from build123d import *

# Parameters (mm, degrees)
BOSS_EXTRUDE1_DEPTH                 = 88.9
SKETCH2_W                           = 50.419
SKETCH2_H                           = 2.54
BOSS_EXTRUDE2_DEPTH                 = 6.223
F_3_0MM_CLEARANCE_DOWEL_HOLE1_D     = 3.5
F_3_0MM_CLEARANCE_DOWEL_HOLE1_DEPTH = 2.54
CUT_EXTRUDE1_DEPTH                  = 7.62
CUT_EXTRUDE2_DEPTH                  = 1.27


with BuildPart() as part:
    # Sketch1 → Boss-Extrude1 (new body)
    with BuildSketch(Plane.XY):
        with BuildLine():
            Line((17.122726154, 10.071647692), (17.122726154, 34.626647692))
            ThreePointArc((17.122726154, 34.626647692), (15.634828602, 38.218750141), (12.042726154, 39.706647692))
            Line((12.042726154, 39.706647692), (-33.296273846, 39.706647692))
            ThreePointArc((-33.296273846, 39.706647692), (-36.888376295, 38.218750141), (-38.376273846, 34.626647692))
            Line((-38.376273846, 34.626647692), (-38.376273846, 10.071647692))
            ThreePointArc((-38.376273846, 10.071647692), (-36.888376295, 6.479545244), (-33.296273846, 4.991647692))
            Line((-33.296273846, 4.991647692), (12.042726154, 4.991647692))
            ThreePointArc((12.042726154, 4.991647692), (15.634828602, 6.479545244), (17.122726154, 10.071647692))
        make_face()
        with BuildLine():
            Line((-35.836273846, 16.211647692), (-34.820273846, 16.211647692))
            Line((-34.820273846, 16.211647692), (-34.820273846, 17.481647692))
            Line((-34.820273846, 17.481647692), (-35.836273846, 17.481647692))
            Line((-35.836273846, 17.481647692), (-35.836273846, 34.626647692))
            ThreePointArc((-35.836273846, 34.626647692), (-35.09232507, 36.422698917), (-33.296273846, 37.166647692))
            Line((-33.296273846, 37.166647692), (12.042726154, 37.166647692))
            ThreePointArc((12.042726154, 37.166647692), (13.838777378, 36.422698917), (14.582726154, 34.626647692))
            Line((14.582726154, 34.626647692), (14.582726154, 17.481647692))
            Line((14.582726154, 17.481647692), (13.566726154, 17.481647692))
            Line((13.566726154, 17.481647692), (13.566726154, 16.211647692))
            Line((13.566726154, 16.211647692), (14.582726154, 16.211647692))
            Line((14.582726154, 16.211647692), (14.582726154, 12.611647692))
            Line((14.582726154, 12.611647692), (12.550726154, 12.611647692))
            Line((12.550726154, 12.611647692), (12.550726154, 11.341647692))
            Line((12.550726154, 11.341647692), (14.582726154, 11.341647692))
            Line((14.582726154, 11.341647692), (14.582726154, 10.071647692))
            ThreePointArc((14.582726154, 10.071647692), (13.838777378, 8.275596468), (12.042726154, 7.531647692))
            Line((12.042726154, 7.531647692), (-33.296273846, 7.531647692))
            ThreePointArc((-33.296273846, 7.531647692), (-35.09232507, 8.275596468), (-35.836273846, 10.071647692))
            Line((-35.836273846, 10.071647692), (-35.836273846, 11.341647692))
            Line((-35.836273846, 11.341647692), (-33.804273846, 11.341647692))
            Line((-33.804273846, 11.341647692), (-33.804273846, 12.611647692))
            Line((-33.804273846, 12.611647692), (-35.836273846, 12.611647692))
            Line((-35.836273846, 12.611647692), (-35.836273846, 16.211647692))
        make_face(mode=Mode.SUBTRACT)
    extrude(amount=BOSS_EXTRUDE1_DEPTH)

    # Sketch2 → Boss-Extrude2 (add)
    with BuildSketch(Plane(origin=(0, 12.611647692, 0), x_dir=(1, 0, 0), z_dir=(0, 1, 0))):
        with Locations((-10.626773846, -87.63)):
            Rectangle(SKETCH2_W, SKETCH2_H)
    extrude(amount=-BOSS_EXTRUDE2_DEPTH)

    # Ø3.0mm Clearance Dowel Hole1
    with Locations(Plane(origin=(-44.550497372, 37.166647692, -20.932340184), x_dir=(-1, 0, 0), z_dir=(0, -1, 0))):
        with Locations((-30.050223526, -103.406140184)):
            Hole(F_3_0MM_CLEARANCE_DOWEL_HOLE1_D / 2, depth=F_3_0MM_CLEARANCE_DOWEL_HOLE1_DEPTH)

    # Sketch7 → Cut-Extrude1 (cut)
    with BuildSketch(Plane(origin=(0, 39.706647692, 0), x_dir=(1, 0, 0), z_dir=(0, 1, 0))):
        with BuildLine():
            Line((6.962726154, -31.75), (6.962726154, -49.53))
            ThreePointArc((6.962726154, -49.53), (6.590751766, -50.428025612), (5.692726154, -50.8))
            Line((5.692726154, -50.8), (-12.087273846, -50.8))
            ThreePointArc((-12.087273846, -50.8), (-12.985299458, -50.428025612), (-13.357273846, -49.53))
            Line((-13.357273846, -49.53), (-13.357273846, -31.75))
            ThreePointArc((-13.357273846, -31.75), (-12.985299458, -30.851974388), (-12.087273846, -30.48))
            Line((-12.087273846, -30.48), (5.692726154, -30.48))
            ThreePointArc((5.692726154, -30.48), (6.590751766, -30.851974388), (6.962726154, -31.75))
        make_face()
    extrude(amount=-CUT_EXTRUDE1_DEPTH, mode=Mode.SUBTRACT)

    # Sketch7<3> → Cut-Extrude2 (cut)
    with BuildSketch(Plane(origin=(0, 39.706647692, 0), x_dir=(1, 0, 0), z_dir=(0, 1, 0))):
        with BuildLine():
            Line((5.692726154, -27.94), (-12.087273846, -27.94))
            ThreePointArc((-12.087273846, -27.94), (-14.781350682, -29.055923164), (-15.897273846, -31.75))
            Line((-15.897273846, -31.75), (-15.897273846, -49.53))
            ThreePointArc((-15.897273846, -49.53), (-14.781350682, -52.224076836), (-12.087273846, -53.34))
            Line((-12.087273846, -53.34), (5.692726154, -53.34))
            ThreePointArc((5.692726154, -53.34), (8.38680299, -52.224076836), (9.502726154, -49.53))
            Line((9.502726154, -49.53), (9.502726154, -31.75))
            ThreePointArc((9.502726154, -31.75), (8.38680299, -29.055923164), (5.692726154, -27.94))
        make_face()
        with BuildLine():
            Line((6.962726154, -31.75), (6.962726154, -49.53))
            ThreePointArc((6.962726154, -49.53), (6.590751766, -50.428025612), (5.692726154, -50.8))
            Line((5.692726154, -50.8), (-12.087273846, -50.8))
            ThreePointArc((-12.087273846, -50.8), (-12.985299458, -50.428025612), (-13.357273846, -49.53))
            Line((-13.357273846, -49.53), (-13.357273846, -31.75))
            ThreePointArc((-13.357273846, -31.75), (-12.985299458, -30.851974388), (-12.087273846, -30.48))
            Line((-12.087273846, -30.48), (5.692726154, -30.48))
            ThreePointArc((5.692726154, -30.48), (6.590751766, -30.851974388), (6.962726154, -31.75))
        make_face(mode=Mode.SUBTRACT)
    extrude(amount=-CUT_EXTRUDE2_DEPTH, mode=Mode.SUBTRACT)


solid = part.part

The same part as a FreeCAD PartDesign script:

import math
import FreeCAD as App
import Part
import Sketcher

V = App.Vector
Q = App.Units.Quantity


def add_polygon(sketch, points):
    """Adds a closed chain of lines whose ends are joined by coincident constraints."""
    first, n = sketch.GeometryCount, len(points)
    for a, b in zip(points, points[1:] + points[:1]):
        sketch.addGeometry(Part.LineSegment(App.Vector(*a, 0), App.Vector(*b, 0)), False)
    for i in range(n):
        sketch.addConstraint(Sketcher.Constraint("Coincident", first + i, 2, first + (i + 1) % n, 1))

doc = App.newDocument("Part")
body = doc.addObject("PartDesign::Body", "Body")

# Sketch on XY plane
sketch1 = doc.addObject("Sketcher::SketchObject", "Sketch")
body.addObject(sketch1)
sketch1.AttachmentSupport = (doc.XY_Plane, [""])
sketch1.MapMode = "FlatFace"
sketch1.addGeometry([
    Part.LineSegment(V(17.1, 10.1, 0), V(17.1, 34.6, 0)),  # 0
    Part.ArcOfCircle(Part.Circle(V(12, 34.6, 0), V(0, 0, 1), 5.1), math.radians(0), math.radians(90)),  # 1
    Part.LineSegment(V(12, 39.7, 0), V(-33.3, 39.7, 0)),  # 2
    Part.ArcOfCircle(Part.Circle(V(-33.3, 34.6, 0), V(0, 0, 1), 5.1), math.radians(90), math.radians(180)),  # 3
    Part.LineSegment(V(-38.4, 34.6, 0), V(-38.4, 10.1, 0)),  # 4
    Part.ArcOfCircle(Part.Circle(V(-33.3, 10.1, 0), V(0, 0, 1), 5.1), math.radians(180), math.radians(270)),  # 5
    Part.LineSegment(V(-33.3, 5, 0), V(12, 5, 0)),  # 6
    Part.ArcOfCircle(Part.Circle(V(12, 10.1, 0), V(0, 0, 1), 5.1), math.radians(-90), math.radians(0)),  # 7
    Part.LineSegment(V(-35.8, 12.6, 0), V(-35.8, 16.2, 0)),  # 8
    Part.LineSegment(V(-35.8, 16.2, 0), V(-34.8, 16.2, 0)),  # 9
    Part.LineSegment(V(-34.8, 16.2, 0), V(-34.8, 17.5, 0)),  # 10
    Part.LineSegment(V(-34.8, 17.5, 0), V(-35.8, 17.5, 0)),  # 11
    Part.LineSegment(V(-35.8, 17.5, 0), V(-35.8, 34.6, 0)),  # 12
    Part.ArcOfCircle(Part.Circle(V(-33.3, 34.6, 0), V(0, 0, 1), 2.5), math.radians(90), math.radians(180)),  # 13
    Part.LineSegment(V(-33.3, 37.2, 0), V(12, 37.2, 0)),  # 14
    Part.ArcOfCircle(Part.Circle(V(12, 34.6, 0), V(0, 0, 1), 2.5), math.radians(0), math.radians(90)),  # 15
    Part.LineSegment(V(14.6, 34.6, 0), V(14.6, 17.5, 0)),  # 16
    Part.LineSegment(V(14.6, 17.5, 0), V(13.6, 17.5, 0)),  # 17
    Part.LineSegment(V(13.6, 17.5, 0), V(13.6, 16.2, 0)),  # 18
    Part.LineSegment(V(13.6, 16.2, 0), V(14.6, 16.2, 0)),  # 19
    Part.LineSegment(V(14.6, 16.2, 0), V(14.6, 12.6, 0)),  # 20
    Part.LineSegment(V(14.6, 12.6, 0), V(12.6, 12.6, 0)),  # 21
    Part.LineSegment(V(12.6, 12.6, 0), V(12.6, 11.3, 0)),  # 22
    Part.LineSegment(V(12.6, 11.3, 0), V(14.6, 11.3, 0)),  # 23
    Part.LineSegment(V(14.6, 11.3, 0), V(14.6, 10.1, 0)),  # 24
    Part.ArcOfCircle(Part.Circle(V(12, 10.1, 0), V(0, 0, 1), 2.5), math.radians(-90), math.radians(0)),  # 25
    Part.LineSegment(V(12, 7.5, 0), V(-33.3, 7.5, 0)),  # 26
    Part.ArcOfCircle(Part.Circle(V(-33.3, 10.1, 0), V(0, 0, 1), 2.5), math.radians(-180), math.radians(-90)),  # 27
    Part.LineSegment(V(-35.8, 10.1, 0), V(-35.8, 11.3, 0)),  # 28
    Part.LineSegment(V(-35.8, 11.3, 0), V(-33.8, 11.3, 0)),  # 29
    Part.LineSegment(V(-33.8, 11.3, 0), V(-33.8, 12.6, 0)),  # 30
    Part.LineSegment(V(-33.8, 12.6, 0), V(-35.8, 12.6, 0)),  # 31
], False)
sketch1.addConstraint([
    Sketcher.Constraint("Tangent", 0, 2, 1, 1),
    Sketcher.Constraint("Tangent", 1, 2, 2, 1),
    Sketcher.Constraint("Tangent", 2, 2, 3, 1),
    Sketcher.Constraint("Tangent", 3, 2, 4, 1),
    Sketcher.Constraint("Tangent", 4, 2, 5, 1),
    Sketcher.Constraint("Tangent", 5, 2, 6, 1),
    Sketcher.Constraint("Tangent", 6, 2, 7, 1),
    Sketcher.Constraint("Tangent", 7, 2, 0, 1),
    Sketcher.Constraint("Coincident", 8, 2, 9, 1),
    Sketcher.Constraint("Coincident", 9, 2, 10, 1),
    Sketcher.Constraint("Coincident", 10, 2, 11, 1),
    Sketcher.Constraint("Coincident", 11, 2, 12, 1),
    Sketcher.Constraint("Tangent", 12, 2, 13, 2),
    Sketcher.Constraint("Tangent", 13, 1, 14, 1),
    Sketcher.Constraint("Tangent", 14, 2, 15, 2),
    Sketcher.Constraint("Tangent", 15, 1, 16, 1),
    Sketcher.Constraint("Coincident", 16, 2, 17, 1),
    Sketcher.Constraint("Coincident", 17, 2, 18, 1),
    Sketcher.Constraint("Coincident", 18, 2, 19, 1),
    Sketcher.Constraint("Coincident", 19, 2, 20, 1),
    Sketcher.Constraint("Coincident", 20, 2, 21, 1),
    Sketcher.Constraint("Coincident", 21, 2, 22, 1),
    Sketcher.Constraint("Coincident", 22, 2, 23, 1),
    Sketcher.Constraint("Coincident", 23, 2, 24, 1),
    Sketcher.Constraint("Tangent", 24, 2, 25, 2),
    Sketcher.Constraint("Tangent", 25, 1, 26, 1),
    Sketcher.Constraint("Tangent", 26, 2, 27, 2),
    Sketcher.Constraint("Tangent", 27, 1, 28, 1),
    Sketcher.Constraint("Coincident", 28, 2, 29, 1),
    Sketcher.Constraint("Coincident", 29, 2, 30, 1),
    Sketcher.Constraint("Coincident", 30, 2, 31, 1),
    Sketcher.Constraint("Coincident", 31, 2, 8, 1),
    Sketcher.Constraint("Vertical", 0),
    Sketcher.Constraint("Horizontal", 2),
    Sketcher.Constraint("Vertical", 4),
    Sketcher.Constraint("Horizontal", 6),
    Sketcher.Constraint("Vertical", 8),
    Sketcher.Constraint("Horizontal", 9),
    Sketcher.Constraint("Vertical", 10),
    Sketcher.Constraint("Horizontal", 11),
    Sketcher.Constraint("Vertical", 12),
    Sketcher.Constraint("Horizontal", 14),
    Sketcher.Constraint("Vertical", 16),
    Sketcher.Constraint("Horizontal", 17),
    Sketcher.Constraint("Vertical", 18),
    Sketcher.Constraint("Horizontal", 19),
    Sketcher.Constraint("Vertical", 20),
    Sketcher.Constraint("Horizontal", 21),
    Sketcher.Constraint("Vertical", 22),
    Sketcher.Constraint("Horizontal", 23),
    Sketcher.Constraint("Vertical", 24),
    Sketcher.Constraint("Horizontal", 26),
    Sketcher.Constraint("Vertical", 28),
    Sketcher.Constraint("Horizontal", 29),
    Sketcher.Constraint("Vertical", 30),
    Sketcher.Constraint("Horizontal", 31),
    Sketcher.Constraint("Coincident", 13, 3, 3, 3),
    Sketcher.Constraint("Coincident", 15, 3, 1, 3),
    Sketcher.Constraint("Coincident", 25, 3, 7, 3),
    Sketcher.Constraint("Coincident", 27, 3, 5, 3),
    Sketcher.Constraint("Equal", 1, 3),
    Sketcher.Constraint("Equal", 3, 5),
    Sketcher.Constraint("Equal", 5, 7),
    Sketcher.Constraint("Equal", 15, 25),
    Sketcher.Constraint("Horizontal", 11, 2, 16, 2),
    Sketcher.Constraint("Horizontal", 9, 2, 18, 2),
    Sketcher.Constraint("Horizontal", 23, 2, 28, 2),
    Sketcher.Constraint("Horizontal", 21, 2, 30, 2),
    Sketcher.Constraint("Vertical", 8, 2, 11, 2),
    Sketcher.Constraint("Vertical", 16, 2, 19, 2),
    Sketcher.Constraint("Equal", 11, 17),
    Sketcher.Constraint("Equal", 23, 29),
    Sketcher.Constraint("Equal", 18, 22),
    Sketcher.Constraint("Equal", 22, 24),
    Sketcher.Constraint("Radius", 1, Q("0.2 in")),
    Sketcher.Constraint("Radius", 13, Q("0.1 in")),
    Sketcher.Constraint("DistanceX", 9, 1, 9, 2, Q("0.04 in")),
    Sketcher.Constraint("DistanceX", 21, 2, 21, 1, Q("0.08 in")),
    Sketcher.Constraint("DistanceY", 10, 1, 10, 2, Q("0.05 in")),
    Sketcher.Constraint("DistanceX", 2, 2, 2, 1, Q("1.785 in")),
    Sketcher.Constraint("DistanceY", 12, 1, 12, 2, Q("0.675 in")),
    Sketcher.Constraint("DistanceY", 0, 1, 0, 2, 24.555),
    Sketcher.Constraint("DistanceX", -1, 1, 1, 3, 12.042726),
    Sketcher.Constraint("DistanceY", -1, 1, 1, 3, 34.626648),
])
pad1 = doc.addObject("PartDesign::Pad", "Pad")
body.addObject(pad1)
pad1.Profile = sketch1
pad1.Length = Q("3.5 in")

# Sketch on XZ plane
sketch2 = doc.addObject("Sketcher::SketchObject", "Sketch001")
body.addObject(sketch2)
sketch2.AttachmentSupport = (doc.XZ_Plane, [""])
sketch2.MapMode = "FlatFace"
sketch2.AttachmentOffset = App.Placement(V(0, 0, -12.611648), App.Rotation())
add_polygon(sketch2, [(-35.8, 86.4), (-35.8, 88.9), (14.6, 88.9), (14.6, 86.4)])  # lines 0-3
sketch2.addConstraint([
    Sketcher.Constraint("Vertical", 0),
    Sketcher.Constraint("Horizontal", 1),
    Sketcher.Constraint("Vertical", 2),
    Sketcher.Constraint("Horizontal", 3),
    Sketcher.Constraint("DistanceY", 0, 1, 0, 2, Q("0.1 in")),
    Sketcher.Constraint("DistanceY", -1, 1, 0, 2, Q("3.5 in")),
    Sketcher.Constraint("DistanceX", 1, 1, 1, 2, Q("1.985 in")),
    Sketcher.Constraint("DistanceX", 0, 2, -1, 1, 35.836274),
])
pad2 = doc.addObject("PartDesign::Pad", "Pad001")
body.addObject(pad2)
pad2.Profile = sketch2
pad2.Length = Q("0.245 in")

# Sketch on XZ plane
sketch3 = doc.addObject("Sketcher::SketchObject", "Sketch002")
body.addObject(sketch3)
sketch3.AttachmentSupport = (doc.XZ_Plane, [""])
sketch3.MapMode = "FlatFace"
sketch3.AttachmentOffset = App.Placement(V(0, 0, -37.166648), App.Rotation())
sketch3.addGeometry(Part.Circle(V(-14.5, 82.5, 0), V(0, 0, 1), 1.8), False)
sketch3.addConstraint([
    Sketcher.Constraint("Diameter", 0, 3.5),
    Sketcher.Constraint("DistanceY", -1, 1, 0, 3, Q("3.247 in")),
    Sketcher.Constraint("DistanceX", 0, 3, -1, 1, 14.500274),
])
doc.recompute()
hole = doc.addObject("PartDesign::Hole", "Hole")
body.addObject(hole)
hole.Profile = sketch3
hole.ThreadType = "None"
hole.Diameter = 3.5
hole.DepthType = "Dimension"
hole.Depth = Q("0.1 in")
hole.DrillPoint = "Flat"

# Sketch on XZ plane
sketch4 = doc.addObject("Sketcher::SketchObject", "Sketch003")
body.addObject(sketch4)
sketch4.AttachmentSupport = (doc.XZ_Plane, [""])
sketch4.MapMode = "FlatFace"
sketch4.AttachmentOffset = App.Placement(V(0, 0, -39.706648), App.Rotation())
sketch4.addGeometry([
    Part.LineSegment(V(7, 49.5, 0), V(7, 31.8, 0)),  # 0
    Part.ArcOfCircle(Part.Circle(V(5.7, 31.8, 0), V(0, 0, 1), 1.3), math.radians(-90), math.radians(0)),  # 1
    Part.LineSegment(V(5.7, 30.5, 0), V(-12.1, 30.5, 0)),  # 2
    Part.ArcOfCircle(Part.Circle(V(-12.1, 31.8, 0), V(0, 0, 1), 1.3), math.radians(180), math.radians(270)),  # 3
    Part.LineSegment(V(-13.4, 31.8, 0), V(-13.4, 49.5, 0)),  # 4
    Part.ArcOfCircle(Part.Circle(V(-12.1, 49.5, 0), V(0, 0, 1), 1.3), math.radians(90), math.radians(180)),  # 5
    Part.LineSegment(V(-12.1, 50.8, 0), V(5.7, 50.8, 0)),  # 6
    Part.ArcOfCircle(Part.Circle(V(5.7, 49.5, 0), V(0, 0, 1), 1.3), math.radians(0), math.radians(90)),  # 7
], False)
sketch4.addConstraint([
    Sketcher.Constraint("Tangent", 0, 2, 1, 2),
    Sketcher.Constraint("Tangent", 1, 1, 2, 1),
    Sketcher.Constraint("Tangent", 2, 2, 3, 2),
    Sketcher.Constraint("Tangent", 3, 1, 4, 1),
    Sketcher.Constraint("Tangent", 4, 2, 5, 2),
    Sketcher.Constraint("Tangent", 5, 1, 6, 1),
    Sketcher.Constraint("Tangent", 6, 2, 7, 2),
    Sketcher.Constraint("Tangent", 7, 1, 0, 1),
    Sketcher.Constraint("Vertical", 0),
    Sketcher.Constraint("Horizontal", 2),
    Sketcher.Constraint("Vertical", 4),
    Sketcher.Constraint("Horizontal", 6),
    Sketcher.Constraint("Equal", 1, 3),
    Sketcher.Constraint("Equal", 3, 5),
    Sketcher.Constraint("Equal", 5, 7),
    Sketcher.Constraint("Equal", 6, 0),
    Sketcher.Constraint("Radius", 1, Q("0.05 in")),
    Sketcher.Constraint("DistanceX", 2, 2, 2, 1, Q("0.7 in")),
    Sketcher.Constraint("DistanceY", -1, 1, 5, 1, Q("2 in")),
    Sketcher.Constraint("DistanceX", -1, 1, 1, 3, 5.692726),
])
pocket1 = doc.addObject("PartDesign::Pocket", "Pocket")
body.addObject(pocket1)
pocket1.Profile = sketch4
pocket1.Length = Q("0.3 in")
pocket1.Reversed = True

# Sketch on XZ plane
sketch5 = doc.addObject("Sketcher::SketchObject", "Sketch004")
body.addObject(sketch5)
sketch5.AttachmentSupport = (doc.XZ_Plane, [""])
sketch5.MapMode = "FlatFace"
sketch5.AttachmentOffset = App.Placement(V(0, 0, -39.706648), App.Rotation())
sketch5.addGeometry([
    Part.LineSegment(V(5.7, 27.9, 0), V(-12.1, 27.9, 0)),  # 0
    Part.ArcOfCircle(Part.Circle(V(-12.1, 31.8, 0), V(0, 0, 1), 3.8), math.radians(-180), math.radians(-90)),  # 1
    Part.LineSegment(V(-15.9, 31.8, 0), V(-15.9, 49.5, 0)),  # 2
    Part.ArcOfCircle(Part.Circle(V(-12.1, 49.5, 0), V(0, 0, 1), 3.8), math.radians(90), math.radians(180)),  # 3
    Part.LineSegment(V(-12.1, 53.3, 0), V(5.7, 53.3, 0)),  # 4
    Part.ArcOfCircle(Part.Circle(V(5.7, 49.5, 0), V(0, 0, 1), 3.8), math.radians(0), math.radians(90)),  # 5
    Part.LineSegment(V(9.5, 49.5, 0), V(9.5, 31.8, 0)),  # 6
    Part.ArcOfCircle(Part.Circle(V(5.7, 31.8, 0), V(0, 0, 1), 3.8), math.radians(-90), math.radians(0)),  # 7
    Part.ArcOfCircle(Part.Circle(V(5.7, 31.8, 0), V(0, 0, 1), 1.3), math.radians(-90), math.radians(0)),  # 8
    Part.LineSegment(V(7, 31.8, 0), V(7, 49.5, 0)),  # 9
    Part.ArcOfCircle(Part.Circle(V(5.7, 49.5, 0), V(0, 0, 1), 1.3), math.radians(0), math.radians(90)),  # 10
    Part.LineSegment(V(5.7, 50.8, 0), V(-12.1, 50.8, 0)),  # 11
    Part.ArcOfCircle(Part.Circle(V(-12.1, 49.5, 0), V(0, 0, 1), 1.3), math.radians(90), math.radians(180)),  # 12
    Part.LineSegment(V(-13.4, 49.5, 0), V(-13.4, 31.8, 0)),  # 13
    Part.ArcOfCircle(Part.Circle(V(-12.1, 31.8, 0), V(0, 0, 1), 1.3), math.radians(180), math.radians(270)),  # 14
    Part.LineSegment(V(-12.1, 30.5, 0), V(5.7, 30.5, 0)),  # 15
], False)
sketch5.addConstraint([
    Sketcher.Constraint("Tangent", 0, 2, 1, 2),
    Sketcher.Constraint("Tangent", 1, 1, 2, 1),
    Sketcher.Constraint("Tangent", 2, 2, 3, 2),
    Sketcher.Constraint("Tangent", 3, 1, 4, 1),
    Sketcher.Constraint("Tangent", 4, 2, 5, 2),
    Sketcher.Constraint("Tangent", 5, 1, 6, 1),
    Sketcher.Constraint("Tangent", 6, 2, 7, 2),
    Sketcher.Constraint("Tangent", 7, 1, 0, 1),
    Sketcher.Constraint("Tangent", 8, 2, 9, 1),
    Sketcher.Constraint("Tangent", 9, 2, 10, 1),
    Sketcher.Constraint("Tangent", 10, 2, 11, 1),
    Sketcher.Constraint("Tangent", 11, 2, 12, 1),
    Sketcher.Constraint("Tangent", 12, 2, 13, 1),
    Sketcher.Constraint("Tangent", 13, 2, 14, 1),
    Sketcher.Constraint("Tangent", 14, 2, 15, 1),
    Sketcher.Constraint("Tangent", 15, 2, 8, 1),
    Sketcher.Constraint("Horizontal", 0),
    Sketcher.Constraint("Vertical", 2),
    Sketcher.Constraint("Horizontal", 4),
    Sketcher.Constraint("Vertical", 6),
    Sketcher.Constraint("Vertical", 9),
    Sketcher.Constraint("Horizontal", 11),
    Sketcher.Constraint("Vertical", 13),
    Sketcher.Constraint("Horizontal", 15),
    Sketcher.Constraint("Coincident", 8, 3, 7, 3),
    Sketcher.Constraint("Coincident", 10, 3, 5, 3),
    Sketcher.Constraint("Coincident", 12, 3, 3, 3),
    Sketcher.Constraint("Equal", 1, 3),
    Sketcher.Constraint("Equal", 3, 5),
    Sketcher.Constraint("Equal", 5, 7),
    Sketcher.Constraint("Equal", 12, 14),
    Sketcher.Constraint("Equal", 15, 2),
    Sketcher.Constraint("Radius", 1, Q("0.15 in")),
    Sketcher.Constraint("Radius", 8, Q("0.05 in")),
    Sketcher.Constraint("DistanceX", 0, 2, 0, 1, Q("0.7 in")),
    Sketcher.Constraint("DistanceY", -1, 1, 10, 2, Q("2 in")),
    Sketcher.Constraint("DistanceX", 1, 3, -1, 1, 12.087274),
])
pocket2 = doc.addObject("PartDesign::Pocket", "Pocket001")
body.addObject(pocket2)
pocket2.Profile = sketch5
pocket2.Length = Q("0.05 in")
pocket2.Reversed = True

doc.recompute()
